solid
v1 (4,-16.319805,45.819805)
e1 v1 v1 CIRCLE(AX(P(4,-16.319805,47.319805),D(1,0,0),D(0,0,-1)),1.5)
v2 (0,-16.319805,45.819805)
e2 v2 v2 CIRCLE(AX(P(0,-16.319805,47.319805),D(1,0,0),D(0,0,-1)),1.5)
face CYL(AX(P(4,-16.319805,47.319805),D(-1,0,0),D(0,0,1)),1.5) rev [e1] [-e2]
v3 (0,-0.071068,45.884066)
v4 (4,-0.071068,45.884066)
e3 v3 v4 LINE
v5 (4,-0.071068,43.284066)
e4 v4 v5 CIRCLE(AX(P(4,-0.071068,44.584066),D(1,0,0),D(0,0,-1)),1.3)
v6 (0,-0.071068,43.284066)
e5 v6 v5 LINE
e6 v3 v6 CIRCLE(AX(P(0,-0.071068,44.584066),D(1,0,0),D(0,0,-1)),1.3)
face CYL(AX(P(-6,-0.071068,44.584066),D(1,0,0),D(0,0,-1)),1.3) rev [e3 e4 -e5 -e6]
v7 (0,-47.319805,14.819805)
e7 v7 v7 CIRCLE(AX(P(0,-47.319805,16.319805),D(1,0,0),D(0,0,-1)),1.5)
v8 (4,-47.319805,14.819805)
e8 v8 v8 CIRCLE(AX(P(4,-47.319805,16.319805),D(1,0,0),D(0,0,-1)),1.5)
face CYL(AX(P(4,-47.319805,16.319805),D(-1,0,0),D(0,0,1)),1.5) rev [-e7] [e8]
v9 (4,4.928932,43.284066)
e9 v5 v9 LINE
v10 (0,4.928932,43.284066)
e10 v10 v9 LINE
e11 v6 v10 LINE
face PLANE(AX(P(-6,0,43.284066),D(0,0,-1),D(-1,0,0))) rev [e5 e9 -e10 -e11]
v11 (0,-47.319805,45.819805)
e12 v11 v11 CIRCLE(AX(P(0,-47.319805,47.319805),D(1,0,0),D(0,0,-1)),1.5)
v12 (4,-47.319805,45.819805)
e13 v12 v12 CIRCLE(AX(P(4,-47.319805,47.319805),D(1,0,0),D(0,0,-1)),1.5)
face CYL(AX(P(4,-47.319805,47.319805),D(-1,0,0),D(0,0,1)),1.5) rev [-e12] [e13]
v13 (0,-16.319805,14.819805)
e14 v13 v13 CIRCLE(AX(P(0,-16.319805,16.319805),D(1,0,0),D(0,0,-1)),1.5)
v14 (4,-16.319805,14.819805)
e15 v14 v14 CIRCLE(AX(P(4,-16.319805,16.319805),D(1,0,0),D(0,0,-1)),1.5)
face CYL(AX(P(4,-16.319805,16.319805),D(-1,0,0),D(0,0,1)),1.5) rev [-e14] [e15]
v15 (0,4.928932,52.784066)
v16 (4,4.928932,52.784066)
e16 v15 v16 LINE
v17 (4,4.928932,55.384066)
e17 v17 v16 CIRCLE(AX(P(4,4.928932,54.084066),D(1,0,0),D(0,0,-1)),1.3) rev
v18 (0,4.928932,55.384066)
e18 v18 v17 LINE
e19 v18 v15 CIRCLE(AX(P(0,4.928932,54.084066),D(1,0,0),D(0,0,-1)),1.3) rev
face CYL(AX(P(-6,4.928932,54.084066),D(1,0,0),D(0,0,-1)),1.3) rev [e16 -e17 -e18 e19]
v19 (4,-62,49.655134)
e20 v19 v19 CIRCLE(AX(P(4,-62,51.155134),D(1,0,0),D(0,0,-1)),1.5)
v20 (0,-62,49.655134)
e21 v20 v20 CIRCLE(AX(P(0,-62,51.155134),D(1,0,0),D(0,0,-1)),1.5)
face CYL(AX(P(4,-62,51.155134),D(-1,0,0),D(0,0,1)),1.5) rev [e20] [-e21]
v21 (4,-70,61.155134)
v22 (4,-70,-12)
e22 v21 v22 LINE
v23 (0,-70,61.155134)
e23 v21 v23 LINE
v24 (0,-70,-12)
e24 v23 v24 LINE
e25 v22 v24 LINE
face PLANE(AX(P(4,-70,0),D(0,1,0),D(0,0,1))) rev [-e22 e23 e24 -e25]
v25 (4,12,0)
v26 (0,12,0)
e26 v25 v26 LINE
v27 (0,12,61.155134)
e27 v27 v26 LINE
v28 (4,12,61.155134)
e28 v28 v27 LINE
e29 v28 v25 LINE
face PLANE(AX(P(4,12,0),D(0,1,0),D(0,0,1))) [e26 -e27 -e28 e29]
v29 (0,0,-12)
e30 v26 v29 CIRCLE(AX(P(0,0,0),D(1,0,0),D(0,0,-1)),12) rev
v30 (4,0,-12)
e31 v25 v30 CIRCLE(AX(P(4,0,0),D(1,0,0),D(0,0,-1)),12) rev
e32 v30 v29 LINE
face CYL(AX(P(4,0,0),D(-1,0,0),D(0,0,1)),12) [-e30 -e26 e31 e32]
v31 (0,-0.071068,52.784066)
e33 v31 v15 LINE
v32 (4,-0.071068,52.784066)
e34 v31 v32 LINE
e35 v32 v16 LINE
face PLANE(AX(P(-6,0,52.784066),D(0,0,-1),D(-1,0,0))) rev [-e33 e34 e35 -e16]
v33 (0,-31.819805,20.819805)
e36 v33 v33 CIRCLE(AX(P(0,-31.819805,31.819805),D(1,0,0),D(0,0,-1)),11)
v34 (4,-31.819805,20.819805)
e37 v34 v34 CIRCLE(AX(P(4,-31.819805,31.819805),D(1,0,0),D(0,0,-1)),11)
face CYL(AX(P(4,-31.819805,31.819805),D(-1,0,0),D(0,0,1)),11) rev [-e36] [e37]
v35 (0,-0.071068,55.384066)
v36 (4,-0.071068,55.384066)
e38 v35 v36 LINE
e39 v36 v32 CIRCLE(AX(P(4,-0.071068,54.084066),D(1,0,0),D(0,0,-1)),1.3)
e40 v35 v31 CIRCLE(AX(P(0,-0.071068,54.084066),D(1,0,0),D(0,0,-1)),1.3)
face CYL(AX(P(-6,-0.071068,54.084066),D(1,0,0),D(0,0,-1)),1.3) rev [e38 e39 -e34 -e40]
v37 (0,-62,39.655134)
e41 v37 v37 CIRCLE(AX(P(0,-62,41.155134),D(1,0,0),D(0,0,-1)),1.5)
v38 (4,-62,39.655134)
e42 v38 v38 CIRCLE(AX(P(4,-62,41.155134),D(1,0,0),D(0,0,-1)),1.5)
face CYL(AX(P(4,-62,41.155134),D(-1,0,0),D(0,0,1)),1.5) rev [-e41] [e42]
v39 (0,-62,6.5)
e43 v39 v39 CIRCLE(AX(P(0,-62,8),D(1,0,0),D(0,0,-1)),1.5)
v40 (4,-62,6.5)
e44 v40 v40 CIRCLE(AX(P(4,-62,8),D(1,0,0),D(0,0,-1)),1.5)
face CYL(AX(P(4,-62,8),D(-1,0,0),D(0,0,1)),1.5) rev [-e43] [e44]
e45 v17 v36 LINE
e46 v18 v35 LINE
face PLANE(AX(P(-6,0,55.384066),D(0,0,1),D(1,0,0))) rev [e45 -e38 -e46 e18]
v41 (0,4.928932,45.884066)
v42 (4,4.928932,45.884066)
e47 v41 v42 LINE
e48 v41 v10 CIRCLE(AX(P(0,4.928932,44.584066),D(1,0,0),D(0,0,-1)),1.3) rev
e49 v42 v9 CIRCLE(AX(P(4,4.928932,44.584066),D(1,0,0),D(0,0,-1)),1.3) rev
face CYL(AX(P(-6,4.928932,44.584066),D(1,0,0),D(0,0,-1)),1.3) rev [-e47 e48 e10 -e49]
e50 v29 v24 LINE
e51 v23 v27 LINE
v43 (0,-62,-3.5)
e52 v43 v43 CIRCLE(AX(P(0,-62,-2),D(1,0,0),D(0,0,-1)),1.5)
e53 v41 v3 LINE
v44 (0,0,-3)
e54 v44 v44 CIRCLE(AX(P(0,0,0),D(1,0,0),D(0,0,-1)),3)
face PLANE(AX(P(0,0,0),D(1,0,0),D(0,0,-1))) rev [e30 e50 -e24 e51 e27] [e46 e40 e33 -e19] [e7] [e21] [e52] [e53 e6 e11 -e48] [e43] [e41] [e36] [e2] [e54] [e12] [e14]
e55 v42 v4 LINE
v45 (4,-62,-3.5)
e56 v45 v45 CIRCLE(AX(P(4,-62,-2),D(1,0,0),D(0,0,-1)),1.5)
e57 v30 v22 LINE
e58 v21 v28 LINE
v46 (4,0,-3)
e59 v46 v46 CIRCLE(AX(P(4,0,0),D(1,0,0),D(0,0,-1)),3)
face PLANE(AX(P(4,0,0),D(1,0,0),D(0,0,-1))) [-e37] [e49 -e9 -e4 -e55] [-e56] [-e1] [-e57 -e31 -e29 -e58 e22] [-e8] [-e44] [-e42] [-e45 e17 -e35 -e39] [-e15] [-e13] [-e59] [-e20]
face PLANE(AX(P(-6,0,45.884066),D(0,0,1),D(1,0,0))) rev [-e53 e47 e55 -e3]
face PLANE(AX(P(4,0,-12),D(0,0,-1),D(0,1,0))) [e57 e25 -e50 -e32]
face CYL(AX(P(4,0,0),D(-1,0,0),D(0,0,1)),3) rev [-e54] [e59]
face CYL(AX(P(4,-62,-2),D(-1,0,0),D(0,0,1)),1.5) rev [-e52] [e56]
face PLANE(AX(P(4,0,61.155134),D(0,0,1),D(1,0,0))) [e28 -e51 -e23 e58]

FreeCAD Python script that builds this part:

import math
import FreeCAD as App
import Part
import Sketcher

V = App.Vector
Q = App.Units.Quantity

doc = App.newDocument("Part")
body = doc.addObject("PartDesign::Body", "Body")

# Sketch on YZ plane
sketch1 = doc.addObject("Sketcher::SketchObject", "Sketch")
body.addObject(sketch1)
sketch1.AttachmentSupport = (doc.YZ_Plane, [""])
sketch1.MapMode = "FlatFace"
sketch1.addGeometry([
    Part.LineSegment(V(-70, 61.2, 0), V(-70, -12, 0)),  # 0
    Part.LineSegment(V(-70, -12, 0), V(0, -12, 0)),  # 1
    Part.ArcOfCircle(Part.Circle(V(0, 0, 0), V(0, 0, 1), 12), math.radians(-90), math.radians(-35)),  # 2
    Part.ArcOfCircle(Part.Circle(V(0, 0, 0), V(0, 0, 1), 12), math.radians(-35), math.radians(0)),  # 3
    Part.LineSegment(V(12, 0, 0), V(12, 61.2, 0)),  # 4
    Part.LineSegment(V(12, 61.2, 0), V(-70, 61.2, 0)),  # 5
    Part.Circle(V(-62, 51.2, 0), V(0, 0, 1), 1.5),  # 6
    Part.Circle(V(-62, 41.2, 0), V(0, 0, 1), 1.5),  # 7
    Part.Circle(V(-47.3, 47.3, 0), V(0, 0, 1), 1.5),  # 8
    Part.Circle(V(-31.8, 31.8, 0), V(0, 0, 1), 11),  # 9
    Part.Circle(V(-47.3, 16.3, 0), V(0, 0, 1), 1.5),  # 10
    Part.Circle(V(-62, 8, 0), V(0, 0, 1), 1.5),  # 11
    Part.Circle(V(-62, -2, 0), V(0, 0, 1), 1.5),  # 12
    Part.Circle(V(-16.3, 47.3, 0), V(0, 0, 1), 1.5),  # 13
    Part.Circle(V(-16.3, 16.3, 0), V(0, 0, 1), 1.5),  # 14
    Part.Circle(V(0, 0, 0), V(0, 0, 1), 3),  # 15
], False)
sketch1.addConstraint([
    Sketcher.Constraint("Coincident", 0, 2, 1, 1),
    Sketcher.Constraint("Tangent", 1, 2, 2, 1),
    Sketcher.Constraint("Tangent", 2, 2, 3, 1),
    Sketcher.Constraint("Tangent", 3, 2, 4, 1),
    Sketcher.Constraint("Coincident", 4, 2, 5, 1),
    Sketcher.Constraint("Coincident", 5, 2, 0, 1),
    Sketcher.Constraint("Vertical", 0),
    Sketcher.Constraint("Horizontal", 1),
    Sketcher.Constraint("Vertical", 4),
    Sketcher.Constraint("Horizontal", 5),
    Sketcher.Constraint("Coincident", 2, 3, -1, 1),
    Sketcher.Constraint("Coincident", 15, 3, -1, 1),
    Sketcher.Constraint("Equal", 2, 3),
    Sketcher.Constraint("Equal", 6, 7),
    Sketcher.Constraint("Equal", 7, 8),
    Sketcher.Constraint("Equal", 8, 10),
    Sketcher.Constraint("Equal", 10, 11),
    Sketcher.Constraint("Equal", 11, 12),
    Sketcher.Constraint("Equal", 12, 13),
    Sketcher.Constraint("Equal", 13, 14),
    Sketcher.Constraint("Horizontal", 8, 3, 13, 3),
    Sketcher.Constraint("Horizontal", 10, 3, 14, 3),
    Sketcher.Constraint("Vertical", 6, 3, 7, 3),
    Sketcher.Constraint("Vertical", 8, 3, 10, 3),
    Sketcher.Constraint("Vertical", 7, 3, 11, 3),
    Sketcher.Constraint("Vertical", 11, 3, 12, 3),
    Sketcher.Constraint("Vertical", 13, 3, 14, 3),
    Sketcher.Constraint("Diameter", 6, Q("3 mm")),
    Sketcher.Constraint("Diameter", 9, Q("22 mm")),
    Sketcher.Constraint("Diameter", 15, Q("6 mm")),
    Sketcher.Constraint("Radius", 2, Q("12 mm")),
    Sketcher.Constraint("DistanceX", 1, 1, 1, 2, Q("70 mm")),
    Sketcher.Constraint("DistanceX", 6, 3, -1, 1, Q("62 mm")),
    Sketcher.Constraint("DistanceY", -1, 1, 11, 3, Q("8 mm")),
    Sketcher.Constraint("DistanceY", 12, 3, -1, 1, Q("2 mm")),
    Sketcher.Constraint("DistanceY", 7, 3, 6, 3, Q("10 mm")),
    Sketcher.Constraint("DistanceY", 10, 3, 8, 3, Q("31 mm")),
    Sketcher.Constraint("DistanceX", 8, 3, 13, 3, Q("31 mm")),
    Sketcher.Constraint("DistanceY", 6, 3, 5, 2, Q("10 mm")),
    Sketcher.Constraint("DistanceX", 8, 3, 9, 3, Q("15.5 mm")),
    Sketcher.Constraint("DistanceY", 9, 3, 8, 3, Q("15.5 mm")),
    Sketcher.Constraint("DistanceY", 2, 2, -1, 1, Q("6.8812 mm")),
    Sketcher.Constraint("DistanceY", 0, 2, 0, 1, Q("73.155134 mm")),
    Sketcher.Constraint("DistanceY", 8, 3, 6, 3, Q("3.835329 mm")),
    Sketcher.Constraint("DistanceX", 14, 3, 2, 2, Q("26.150832 mm")),
])
pad1 = doc.addObject("PartDesign::Pad", "Pad")
body.addObject(pad1)
pad1.Profile = sketch1
pad1.Length = 4

# Sketch on YZ plane
sketch2 = doc.addObject("Sketcher::SketchObject", "Sketch001")
body.addObject(sketch2)
sketch2.AttachmentSupport = (doc.YZ_Plane, [""])
sketch2.MapMode = "FlatFace"
sketch2.AttachmentOffset = App.Placement(V(0, 0, 4), App.Rotation())
sketch2.addGeometry([
    Part.LineSegment(V(4.9, 55.4, 0), V(-0.1, 55.4, 0)),  # 0
    Part.ArcOfCircle(Part.Circle(V(-0.1, 54.1, 0), V(0, 0, 1), 1.3), math.radians(90), math.radians(270)),  # 1
    Part.LineSegment(V(-0.1, 52.8, 0), V(4.9, 52.8, 0)),  # 2
    Part.ArcOfCircle(Part.Circle(V(4.9, 54.1, 0), V(0, 0, 1), 1.3), math.radians(-90), math.radians(90)),  # 3
    Part.LineSegment(V(4.9, 45.9, 0), V(-0.1, 45.9, 0)),  # 4
    Part.ArcOfCircle(Part.Circle(V(-0.1, 44.6, 0), V(0, 0, 1), 1.3), math.radians(90), math.radians(270)),  # 5
    Part.LineSegment(V(-0.1, 43.3, 0), V(4.9, 43.3, 0)),  # 6
    Part.ArcOfCircle(Part.Circle(V(4.9, 44.6, 0), V(0, 0, 1), 1.3), math.radians(-90), math.radians(90)),  # 7
], False)
sketch2.addConstraint([
    Sketcher.Constraint("Tangent", 0, 2, 1, 1),
    Sketcher.Constraint("Tangent", 1, 2, 2, 1),
    Sketcher.Constraint("Tangent", 2, 2, 3, 1),
    Sketcher.Constraint("Tangent", 3, 2, 0, 1),
    Sketcher.Constraint("Tangent", 4, 2, 5, 1),
    Sketcher.Constraint("Tangent", 5, 2, 6, 1),
    Sketcher.Constraint("Tangent", 6, 2, 7, 1),
    Sketcher.Constraint("Tangent", 7, 2, 4, 1),
    Sketcher.Constraint("Horizontal", 0),
    Sketcher.Constraint("Horizontal", 2),
    Sketcher.Constraint("Horizontal", 4),
    Sketcher.Constraint("Horizontal", 6),
    Sketcher.Constraint("Equal", 3, 5),
    Sketcher.Constraint("Vertical", 1, 3, 5, 3),
    Sketcher.Constraint("Vertical", 3, 3, 7, 3),
    Sketcher.Constraint("Radius", 1, Q("1.3 mm")),
    Sketcher.Constraint("DistanceX", 0, 2, 0, 1, Q("5 mm")),
    Sketcher.Constraint("DistanceY", 5, 3, 1, 3, Q("9.5 mm")),
    Sketcher.Constraint("DistanceX", 1, 3, -1, 1, Q("0.071068 mm")),
    Sketcher.Constraint("DistanceY", -1, 1, 1, 3, Q("54.084066 mm")),
])
pocket1 = doc.addObject("PartDesign::Pocket", "Pocket")
body.addObject(pocket1)
pocket1.Profile = sketch2
pocket1.Length = 10

doc.recompute()
